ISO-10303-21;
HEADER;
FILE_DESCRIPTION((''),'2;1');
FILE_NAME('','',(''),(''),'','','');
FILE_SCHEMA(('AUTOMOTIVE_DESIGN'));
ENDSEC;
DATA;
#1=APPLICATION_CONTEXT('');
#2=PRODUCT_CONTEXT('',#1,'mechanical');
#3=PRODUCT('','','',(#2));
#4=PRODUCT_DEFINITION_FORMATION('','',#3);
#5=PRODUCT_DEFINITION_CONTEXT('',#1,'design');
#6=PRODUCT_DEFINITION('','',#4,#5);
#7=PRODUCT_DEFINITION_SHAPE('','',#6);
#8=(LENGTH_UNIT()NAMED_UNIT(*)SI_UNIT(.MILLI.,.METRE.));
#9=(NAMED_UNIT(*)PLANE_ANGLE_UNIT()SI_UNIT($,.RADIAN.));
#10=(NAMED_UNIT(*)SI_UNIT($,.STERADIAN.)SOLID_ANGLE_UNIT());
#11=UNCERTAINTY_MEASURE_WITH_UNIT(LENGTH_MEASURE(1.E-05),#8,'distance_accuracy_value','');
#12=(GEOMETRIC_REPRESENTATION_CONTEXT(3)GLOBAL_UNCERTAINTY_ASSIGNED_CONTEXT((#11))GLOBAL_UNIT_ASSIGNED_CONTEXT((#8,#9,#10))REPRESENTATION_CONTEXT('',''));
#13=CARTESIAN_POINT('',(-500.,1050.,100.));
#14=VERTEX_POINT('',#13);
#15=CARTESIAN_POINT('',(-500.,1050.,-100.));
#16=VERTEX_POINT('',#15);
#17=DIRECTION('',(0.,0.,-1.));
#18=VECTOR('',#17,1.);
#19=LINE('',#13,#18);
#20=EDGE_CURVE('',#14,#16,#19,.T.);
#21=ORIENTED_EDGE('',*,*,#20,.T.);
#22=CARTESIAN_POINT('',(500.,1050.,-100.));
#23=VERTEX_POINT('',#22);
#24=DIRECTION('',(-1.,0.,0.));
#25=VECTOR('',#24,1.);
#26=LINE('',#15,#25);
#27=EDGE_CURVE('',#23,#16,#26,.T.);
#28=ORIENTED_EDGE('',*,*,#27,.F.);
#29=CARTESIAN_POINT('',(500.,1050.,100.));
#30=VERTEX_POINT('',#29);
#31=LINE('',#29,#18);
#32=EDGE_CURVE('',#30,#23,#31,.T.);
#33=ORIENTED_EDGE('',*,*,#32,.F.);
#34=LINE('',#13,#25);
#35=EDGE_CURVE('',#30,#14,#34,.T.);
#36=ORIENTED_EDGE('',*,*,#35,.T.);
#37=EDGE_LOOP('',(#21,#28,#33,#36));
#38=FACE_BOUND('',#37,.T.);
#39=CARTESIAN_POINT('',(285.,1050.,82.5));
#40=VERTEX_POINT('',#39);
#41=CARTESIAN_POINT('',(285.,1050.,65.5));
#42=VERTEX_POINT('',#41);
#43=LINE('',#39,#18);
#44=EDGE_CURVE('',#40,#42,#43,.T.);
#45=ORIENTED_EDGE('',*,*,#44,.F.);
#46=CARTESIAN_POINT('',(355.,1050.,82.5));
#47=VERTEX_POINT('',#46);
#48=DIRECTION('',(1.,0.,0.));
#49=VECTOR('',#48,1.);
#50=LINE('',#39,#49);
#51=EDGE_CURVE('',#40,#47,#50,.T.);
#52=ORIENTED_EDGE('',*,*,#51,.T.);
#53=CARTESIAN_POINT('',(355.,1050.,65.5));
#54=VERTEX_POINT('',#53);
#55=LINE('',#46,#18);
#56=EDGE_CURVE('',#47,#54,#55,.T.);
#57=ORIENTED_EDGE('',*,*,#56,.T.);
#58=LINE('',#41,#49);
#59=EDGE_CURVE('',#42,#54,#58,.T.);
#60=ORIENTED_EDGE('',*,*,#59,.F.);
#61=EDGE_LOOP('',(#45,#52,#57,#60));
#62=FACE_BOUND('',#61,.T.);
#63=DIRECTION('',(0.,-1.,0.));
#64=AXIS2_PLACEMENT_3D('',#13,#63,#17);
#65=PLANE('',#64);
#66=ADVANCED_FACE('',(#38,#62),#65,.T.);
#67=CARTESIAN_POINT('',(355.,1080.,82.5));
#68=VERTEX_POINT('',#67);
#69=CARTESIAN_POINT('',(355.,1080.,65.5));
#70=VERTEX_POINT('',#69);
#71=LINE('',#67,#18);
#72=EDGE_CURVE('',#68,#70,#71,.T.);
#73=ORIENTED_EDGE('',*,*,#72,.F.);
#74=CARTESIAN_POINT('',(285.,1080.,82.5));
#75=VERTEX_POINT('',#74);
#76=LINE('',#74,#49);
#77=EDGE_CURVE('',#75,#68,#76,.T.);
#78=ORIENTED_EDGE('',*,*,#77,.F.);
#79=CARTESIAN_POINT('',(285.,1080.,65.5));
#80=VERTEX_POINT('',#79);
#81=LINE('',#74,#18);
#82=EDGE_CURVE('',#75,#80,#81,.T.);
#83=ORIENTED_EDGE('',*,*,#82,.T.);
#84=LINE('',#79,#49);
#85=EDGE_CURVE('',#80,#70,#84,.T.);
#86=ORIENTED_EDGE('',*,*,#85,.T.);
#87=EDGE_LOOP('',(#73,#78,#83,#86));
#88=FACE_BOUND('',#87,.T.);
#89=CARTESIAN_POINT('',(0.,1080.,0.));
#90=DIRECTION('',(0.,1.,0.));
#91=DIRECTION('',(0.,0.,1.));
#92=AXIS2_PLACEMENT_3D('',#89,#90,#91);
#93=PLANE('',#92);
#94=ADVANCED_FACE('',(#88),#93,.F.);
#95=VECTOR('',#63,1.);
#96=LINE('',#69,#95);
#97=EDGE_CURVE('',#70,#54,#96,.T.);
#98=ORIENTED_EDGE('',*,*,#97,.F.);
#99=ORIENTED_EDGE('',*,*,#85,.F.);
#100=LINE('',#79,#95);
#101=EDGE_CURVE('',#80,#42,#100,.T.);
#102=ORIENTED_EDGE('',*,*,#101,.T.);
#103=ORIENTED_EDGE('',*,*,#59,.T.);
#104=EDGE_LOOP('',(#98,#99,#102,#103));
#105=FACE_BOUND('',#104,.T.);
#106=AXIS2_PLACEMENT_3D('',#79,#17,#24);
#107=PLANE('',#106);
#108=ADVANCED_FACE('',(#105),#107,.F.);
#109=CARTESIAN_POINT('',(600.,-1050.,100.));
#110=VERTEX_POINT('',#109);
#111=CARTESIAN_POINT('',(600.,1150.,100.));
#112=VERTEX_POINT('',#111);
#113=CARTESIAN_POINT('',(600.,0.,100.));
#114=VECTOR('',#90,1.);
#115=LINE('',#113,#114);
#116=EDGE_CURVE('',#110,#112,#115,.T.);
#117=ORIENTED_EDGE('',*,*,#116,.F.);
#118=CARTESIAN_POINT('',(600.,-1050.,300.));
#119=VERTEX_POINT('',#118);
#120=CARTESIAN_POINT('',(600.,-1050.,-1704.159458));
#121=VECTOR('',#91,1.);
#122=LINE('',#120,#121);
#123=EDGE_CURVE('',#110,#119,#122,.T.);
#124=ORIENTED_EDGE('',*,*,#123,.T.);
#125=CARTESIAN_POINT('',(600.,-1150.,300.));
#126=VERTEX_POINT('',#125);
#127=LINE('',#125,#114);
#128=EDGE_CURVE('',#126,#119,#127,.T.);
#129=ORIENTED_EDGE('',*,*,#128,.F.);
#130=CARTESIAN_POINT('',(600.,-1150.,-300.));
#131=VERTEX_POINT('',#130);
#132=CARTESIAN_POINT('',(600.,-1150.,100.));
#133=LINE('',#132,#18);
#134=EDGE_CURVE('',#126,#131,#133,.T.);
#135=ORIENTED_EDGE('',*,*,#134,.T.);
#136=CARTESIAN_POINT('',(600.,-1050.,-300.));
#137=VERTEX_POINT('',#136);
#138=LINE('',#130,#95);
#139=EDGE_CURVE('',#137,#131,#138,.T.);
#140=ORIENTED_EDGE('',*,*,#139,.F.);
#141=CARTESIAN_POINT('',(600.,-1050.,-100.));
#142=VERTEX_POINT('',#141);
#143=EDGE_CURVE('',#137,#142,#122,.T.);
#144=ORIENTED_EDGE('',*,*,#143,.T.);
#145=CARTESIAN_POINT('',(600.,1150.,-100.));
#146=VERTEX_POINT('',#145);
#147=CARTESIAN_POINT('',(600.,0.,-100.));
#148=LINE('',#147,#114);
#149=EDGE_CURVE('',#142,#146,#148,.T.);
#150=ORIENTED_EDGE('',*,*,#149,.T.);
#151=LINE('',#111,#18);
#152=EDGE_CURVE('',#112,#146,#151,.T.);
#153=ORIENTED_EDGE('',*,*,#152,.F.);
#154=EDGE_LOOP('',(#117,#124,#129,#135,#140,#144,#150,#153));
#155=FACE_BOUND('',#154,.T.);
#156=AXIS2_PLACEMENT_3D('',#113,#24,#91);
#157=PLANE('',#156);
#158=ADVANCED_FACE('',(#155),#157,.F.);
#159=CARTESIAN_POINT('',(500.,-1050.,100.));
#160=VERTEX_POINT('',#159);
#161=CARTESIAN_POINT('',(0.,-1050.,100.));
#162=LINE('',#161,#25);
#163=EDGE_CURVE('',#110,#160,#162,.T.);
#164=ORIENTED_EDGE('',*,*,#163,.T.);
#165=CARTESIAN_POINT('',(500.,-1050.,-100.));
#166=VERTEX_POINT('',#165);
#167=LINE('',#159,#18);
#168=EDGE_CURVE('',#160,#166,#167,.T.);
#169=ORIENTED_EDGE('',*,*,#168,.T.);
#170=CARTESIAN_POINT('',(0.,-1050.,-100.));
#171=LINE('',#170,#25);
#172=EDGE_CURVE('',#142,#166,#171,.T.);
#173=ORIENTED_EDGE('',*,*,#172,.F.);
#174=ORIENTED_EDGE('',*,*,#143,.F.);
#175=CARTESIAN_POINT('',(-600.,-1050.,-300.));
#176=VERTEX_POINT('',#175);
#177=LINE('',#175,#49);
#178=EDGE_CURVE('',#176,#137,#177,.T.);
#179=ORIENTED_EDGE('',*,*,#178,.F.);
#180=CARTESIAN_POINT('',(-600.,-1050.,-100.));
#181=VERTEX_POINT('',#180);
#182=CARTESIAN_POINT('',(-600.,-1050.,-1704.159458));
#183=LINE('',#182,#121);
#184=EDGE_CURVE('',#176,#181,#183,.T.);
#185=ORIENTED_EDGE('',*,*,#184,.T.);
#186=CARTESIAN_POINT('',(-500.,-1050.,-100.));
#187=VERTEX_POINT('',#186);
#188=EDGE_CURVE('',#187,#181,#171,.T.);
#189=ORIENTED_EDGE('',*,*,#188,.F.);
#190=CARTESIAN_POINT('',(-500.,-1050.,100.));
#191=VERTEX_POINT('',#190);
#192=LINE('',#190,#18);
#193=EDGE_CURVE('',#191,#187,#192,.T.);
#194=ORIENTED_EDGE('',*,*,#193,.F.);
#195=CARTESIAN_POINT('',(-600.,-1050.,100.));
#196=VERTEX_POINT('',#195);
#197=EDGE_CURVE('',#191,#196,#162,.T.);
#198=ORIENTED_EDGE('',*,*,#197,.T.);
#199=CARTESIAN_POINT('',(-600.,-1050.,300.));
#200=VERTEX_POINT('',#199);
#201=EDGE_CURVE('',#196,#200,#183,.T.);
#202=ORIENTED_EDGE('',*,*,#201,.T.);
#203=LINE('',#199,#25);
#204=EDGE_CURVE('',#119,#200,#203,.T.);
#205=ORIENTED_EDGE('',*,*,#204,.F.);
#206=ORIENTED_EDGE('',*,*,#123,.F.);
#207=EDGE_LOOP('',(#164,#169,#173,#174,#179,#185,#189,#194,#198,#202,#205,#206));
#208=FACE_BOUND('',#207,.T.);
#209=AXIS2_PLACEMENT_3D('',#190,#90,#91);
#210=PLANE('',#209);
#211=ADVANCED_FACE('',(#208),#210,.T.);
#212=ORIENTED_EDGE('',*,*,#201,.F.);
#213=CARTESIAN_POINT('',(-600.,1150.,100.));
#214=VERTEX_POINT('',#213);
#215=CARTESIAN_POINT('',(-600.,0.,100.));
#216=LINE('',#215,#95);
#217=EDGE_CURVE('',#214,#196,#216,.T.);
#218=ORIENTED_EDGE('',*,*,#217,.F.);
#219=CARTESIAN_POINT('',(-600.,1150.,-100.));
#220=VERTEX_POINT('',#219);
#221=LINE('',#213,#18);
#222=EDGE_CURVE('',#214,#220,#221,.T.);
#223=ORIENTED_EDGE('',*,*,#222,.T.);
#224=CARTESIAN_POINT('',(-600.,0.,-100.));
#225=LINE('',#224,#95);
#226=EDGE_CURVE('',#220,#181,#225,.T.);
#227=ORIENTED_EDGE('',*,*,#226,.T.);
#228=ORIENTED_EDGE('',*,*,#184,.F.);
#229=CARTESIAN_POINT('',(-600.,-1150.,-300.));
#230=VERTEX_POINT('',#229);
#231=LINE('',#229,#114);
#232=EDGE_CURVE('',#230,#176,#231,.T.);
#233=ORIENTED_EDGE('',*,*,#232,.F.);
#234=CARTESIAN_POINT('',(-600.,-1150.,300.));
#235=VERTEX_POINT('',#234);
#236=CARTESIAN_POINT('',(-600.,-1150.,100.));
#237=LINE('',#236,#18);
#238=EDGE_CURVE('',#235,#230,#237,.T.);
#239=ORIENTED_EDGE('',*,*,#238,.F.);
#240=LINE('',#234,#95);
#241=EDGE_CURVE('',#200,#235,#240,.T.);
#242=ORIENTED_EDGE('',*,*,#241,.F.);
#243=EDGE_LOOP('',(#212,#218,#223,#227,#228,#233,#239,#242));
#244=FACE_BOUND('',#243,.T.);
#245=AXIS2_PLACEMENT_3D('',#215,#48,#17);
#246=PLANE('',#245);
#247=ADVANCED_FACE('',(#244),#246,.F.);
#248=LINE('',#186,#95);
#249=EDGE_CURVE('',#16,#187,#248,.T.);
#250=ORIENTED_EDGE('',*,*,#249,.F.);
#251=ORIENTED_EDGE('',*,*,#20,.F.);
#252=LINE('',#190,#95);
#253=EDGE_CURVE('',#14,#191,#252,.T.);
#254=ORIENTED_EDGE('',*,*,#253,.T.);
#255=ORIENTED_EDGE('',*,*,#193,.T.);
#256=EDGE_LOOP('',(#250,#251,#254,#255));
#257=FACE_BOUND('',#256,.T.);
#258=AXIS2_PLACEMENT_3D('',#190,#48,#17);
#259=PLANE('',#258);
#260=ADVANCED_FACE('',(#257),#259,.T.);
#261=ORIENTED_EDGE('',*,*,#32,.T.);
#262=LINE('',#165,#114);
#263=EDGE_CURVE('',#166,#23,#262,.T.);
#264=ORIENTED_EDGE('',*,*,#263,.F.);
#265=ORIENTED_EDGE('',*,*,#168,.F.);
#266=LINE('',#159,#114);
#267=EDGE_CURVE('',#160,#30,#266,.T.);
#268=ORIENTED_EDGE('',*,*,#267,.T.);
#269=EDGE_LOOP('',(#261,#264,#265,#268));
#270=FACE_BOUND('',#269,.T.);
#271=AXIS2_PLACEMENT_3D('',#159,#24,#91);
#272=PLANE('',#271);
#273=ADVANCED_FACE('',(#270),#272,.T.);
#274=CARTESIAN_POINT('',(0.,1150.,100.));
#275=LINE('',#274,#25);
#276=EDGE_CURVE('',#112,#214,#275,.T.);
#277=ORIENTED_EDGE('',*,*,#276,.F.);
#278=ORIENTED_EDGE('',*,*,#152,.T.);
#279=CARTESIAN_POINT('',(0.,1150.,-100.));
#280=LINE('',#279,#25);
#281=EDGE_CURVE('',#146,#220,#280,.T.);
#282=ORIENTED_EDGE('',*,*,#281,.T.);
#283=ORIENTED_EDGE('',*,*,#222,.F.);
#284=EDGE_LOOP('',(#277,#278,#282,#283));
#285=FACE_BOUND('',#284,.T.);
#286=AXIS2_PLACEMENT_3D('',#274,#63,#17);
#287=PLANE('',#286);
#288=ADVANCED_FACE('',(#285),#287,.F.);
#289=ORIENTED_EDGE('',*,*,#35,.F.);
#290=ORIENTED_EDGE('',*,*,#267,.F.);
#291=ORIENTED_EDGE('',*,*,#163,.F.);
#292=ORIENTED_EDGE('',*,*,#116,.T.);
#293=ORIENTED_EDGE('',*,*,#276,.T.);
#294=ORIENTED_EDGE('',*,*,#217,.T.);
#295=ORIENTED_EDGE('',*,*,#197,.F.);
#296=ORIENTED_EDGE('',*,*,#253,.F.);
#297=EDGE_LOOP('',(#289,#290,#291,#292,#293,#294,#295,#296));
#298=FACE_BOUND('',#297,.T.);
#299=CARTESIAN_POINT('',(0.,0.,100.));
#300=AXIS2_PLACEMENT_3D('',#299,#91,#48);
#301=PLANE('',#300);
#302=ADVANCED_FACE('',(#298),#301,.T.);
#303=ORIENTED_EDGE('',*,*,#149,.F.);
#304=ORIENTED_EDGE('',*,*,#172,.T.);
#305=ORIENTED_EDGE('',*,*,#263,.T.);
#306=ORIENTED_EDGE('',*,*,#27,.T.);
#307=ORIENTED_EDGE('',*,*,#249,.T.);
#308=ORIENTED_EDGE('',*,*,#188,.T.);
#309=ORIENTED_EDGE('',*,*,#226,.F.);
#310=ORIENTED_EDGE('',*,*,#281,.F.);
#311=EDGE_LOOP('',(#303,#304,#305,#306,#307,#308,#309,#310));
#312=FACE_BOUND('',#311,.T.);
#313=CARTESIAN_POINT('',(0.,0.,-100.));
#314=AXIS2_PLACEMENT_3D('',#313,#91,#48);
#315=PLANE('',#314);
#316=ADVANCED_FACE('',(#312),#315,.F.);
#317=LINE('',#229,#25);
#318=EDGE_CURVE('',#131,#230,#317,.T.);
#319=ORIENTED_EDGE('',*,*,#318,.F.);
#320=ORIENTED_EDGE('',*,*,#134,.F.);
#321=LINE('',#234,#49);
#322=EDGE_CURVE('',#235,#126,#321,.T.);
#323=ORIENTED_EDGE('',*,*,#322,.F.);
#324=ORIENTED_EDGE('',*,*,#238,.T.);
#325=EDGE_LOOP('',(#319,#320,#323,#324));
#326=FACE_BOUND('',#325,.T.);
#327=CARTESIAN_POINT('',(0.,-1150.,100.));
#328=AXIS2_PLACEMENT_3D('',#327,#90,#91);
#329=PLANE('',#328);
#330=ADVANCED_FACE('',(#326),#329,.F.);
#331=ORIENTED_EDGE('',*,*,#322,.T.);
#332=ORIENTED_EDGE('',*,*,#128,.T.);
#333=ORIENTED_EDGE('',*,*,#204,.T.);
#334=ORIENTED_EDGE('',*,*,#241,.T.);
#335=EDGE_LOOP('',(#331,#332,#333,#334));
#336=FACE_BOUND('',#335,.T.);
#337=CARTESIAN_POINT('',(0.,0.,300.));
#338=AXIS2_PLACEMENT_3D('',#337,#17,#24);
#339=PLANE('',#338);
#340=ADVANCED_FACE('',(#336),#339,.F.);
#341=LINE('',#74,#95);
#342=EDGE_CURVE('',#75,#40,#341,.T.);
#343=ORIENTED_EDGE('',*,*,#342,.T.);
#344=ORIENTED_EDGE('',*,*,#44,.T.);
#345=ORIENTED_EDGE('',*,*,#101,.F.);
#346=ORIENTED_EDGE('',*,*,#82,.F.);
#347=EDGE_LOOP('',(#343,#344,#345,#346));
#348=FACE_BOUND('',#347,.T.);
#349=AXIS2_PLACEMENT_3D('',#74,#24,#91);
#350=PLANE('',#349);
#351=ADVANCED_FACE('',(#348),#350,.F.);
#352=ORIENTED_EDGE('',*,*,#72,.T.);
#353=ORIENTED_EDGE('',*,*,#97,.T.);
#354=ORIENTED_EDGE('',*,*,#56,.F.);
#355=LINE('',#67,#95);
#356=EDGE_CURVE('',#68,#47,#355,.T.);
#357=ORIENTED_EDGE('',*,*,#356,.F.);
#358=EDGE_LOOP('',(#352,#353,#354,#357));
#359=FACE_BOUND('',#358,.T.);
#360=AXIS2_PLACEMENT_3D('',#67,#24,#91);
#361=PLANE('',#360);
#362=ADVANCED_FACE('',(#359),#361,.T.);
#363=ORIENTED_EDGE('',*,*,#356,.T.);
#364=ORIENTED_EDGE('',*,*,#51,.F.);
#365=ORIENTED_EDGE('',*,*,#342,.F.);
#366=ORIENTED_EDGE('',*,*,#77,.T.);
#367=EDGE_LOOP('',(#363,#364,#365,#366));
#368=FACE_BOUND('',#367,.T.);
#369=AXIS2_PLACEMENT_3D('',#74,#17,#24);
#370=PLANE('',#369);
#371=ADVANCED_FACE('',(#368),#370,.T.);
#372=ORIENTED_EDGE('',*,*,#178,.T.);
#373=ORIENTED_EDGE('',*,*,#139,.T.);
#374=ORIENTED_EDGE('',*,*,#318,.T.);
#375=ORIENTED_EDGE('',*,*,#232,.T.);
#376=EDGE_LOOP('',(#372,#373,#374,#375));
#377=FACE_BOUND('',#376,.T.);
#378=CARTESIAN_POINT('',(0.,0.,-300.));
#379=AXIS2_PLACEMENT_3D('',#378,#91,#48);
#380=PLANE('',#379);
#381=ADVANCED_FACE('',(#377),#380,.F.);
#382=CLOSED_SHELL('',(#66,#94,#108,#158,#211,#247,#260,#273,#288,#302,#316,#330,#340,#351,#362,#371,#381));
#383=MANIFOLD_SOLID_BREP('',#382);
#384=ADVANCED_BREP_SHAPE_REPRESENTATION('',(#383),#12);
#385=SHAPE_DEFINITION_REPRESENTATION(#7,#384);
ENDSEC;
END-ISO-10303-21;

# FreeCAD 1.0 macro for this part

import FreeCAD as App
import Part
import Sketcher
from FreeCAD import Vector


def add_polygon(sketch, points):
    """Adds a closed chain of lines whose ends are joined by coincident constraints."""
    first, n = sketch.GeometryCount, len(points)
    for a, b in zip(points, points[1:] + points[:1]):
        sketch.addGeometry(Part.LineSegment(App.Vector(*a, 0), App.Vector(*b, 0)), False)
    for i in range(n):
        sketch.addConstraint(Sketcher.Constraint("Coincident", first + i, 2, first + (i + 1) % n, 1))

doc = App.newDocument("Part")
body = doc.addObject("PartDesign::Body", "Body")

# Sketch on XY plane
sketch1 = body.newObject("Sketcher::SketchObject", "Sketch")
sketch1.AttachmentSupport = (doc.getObject("XY_Plane"), [""])
sketch1.MapMode = "FlatFace"
add_polygon(sketch1, [(-600, 1150), (-600, -1150), (600, -1150), (600, 1150)])  # lines 0-3
add_polygon(sketch1, [(500, -1050), (-500, -1050), (-500, 1050), (500, 1050)])  # lines 4-7
sketch1.addConstraint(Sketcher.Constraint("Vertical", 0))
sketch1.addConstraint(Sketcher.Constraint("Horizontal", 1))
sketch1.addConstraint(Sketcher.Constraint("Vertical", 2))
sketch1.addConstraint(Sketcher.Constraint("Horizontal", 3))
sketch1.addConstraint(Sketcher.Constraint("Horizontal", 4))
sketch1.addConstraint(Sketcher.Constraint("Vertical", 5))
sketch1.addConstraint(Sketcher.Constraint("Horizontal", 6))
sketch1.addConstraint(Sketcher.Constraint("Vertical", 7))
sketch1.addConstraint(Sketcher.Constraint("Symmetric", 0, 2, 2, 2, -1, 1))
sketch1.addConstraint(Sketcher.Constraint("Symmetric", 4, 2, 6, 2, -1, 1))
sketch1.addConstraint(Sketcher.Constraint("DistanceX", 1, 1, 1, 2, 1200.0))
sketch1.addConstraint(Sketcher.Constraint("DistanceX", 4, 2, 4, 1, 1000.0))
sketch1.addConstraint(Sketcher.Constraint("DistanceY", 0, 2, 0, 1, 2300.0))
sketch1.addConstraint(Sketcher.Constraint("DistanceY", 5, 1, 5, 2, 2100.0))
pad1 = body.newObject("PartDesign::Pad", "Pad")
pad1.Profile = sketch1
pad1.Length = 200
pad1.Midplane = True

# Sketch on XY plane
sketch2 = body.newObject("Sketcher::SketchObject", "Sketch001")
sketch2.AttachmentSupport = (doc.getObject("XY_Plane"), [""])
sketch2.MapMode = "FlatFace"
sketch2.AttachmentOffset = App.Placement(Vector(0, 0, 100), App.Rotation())
add_polygon(sketch2, [(-600, -1050), (-600, -1150), (600, -1150), (600, -1050)])  # lines 0-3
sketch2.addConstraint(Sketcher.Constraint("Vertical", 0))
sketch2.addConstraint(Sketcher.Constraint("Horizontal", 1))
sketch2.addConstraint(Sketcher.Constraint("Vertical", 2))
sketch2.addConstraint(Sketcher.Constraint("Horizontal", 3))
sketch2.addConstraint(Sketcher.Constraint("DistanceX", 1, 1, 1, 2, 1200.0))
sketch2.addConstraint(Sketcher.Constraint("DistanceY", 0, 2, 0, 1, 100.0))
sketch2.addConstraint(Sketcher.Constraint("DistanceX", 0, 2, -1, 1, 600.0))
sketch2.addConstraint(Sketcher.Constraint("DistanceY", 0, 2, -1, 1, 1150.0))
pad2 = body.newObject("PartDesign::Pad", "Pad001")
pad2.Profile = sketch2
pad2.Type = "TwoLengths"
pad2.Length = 200
pad2.Length2 = 400

# Sketch on XZ plane
sketch3 = body.newObject("Sketcher::SketchObject", "Sketch002")
sketch3.AttachmentSupport = (doc.getObject("XZ_Plane"), [""])
sketch3.MapMode = "FlatFace"
sketch3.AttachmentOffset = App.Placement(Vector(0, 0, -1050), App.Rotation())
add_polygon(sketch3, [(285, 82), (285, 66), (355, 66), (355, 82)])  # lines 0-3
sketch3.addConstraint(Sketcher.Constraint("Vertical", 0))
sketch3.addConstraint(Sketcher.Constraint("Horizontal", 1))
sketch3.addConstraint(Sketcher.Constraint("Vertical", 2))
sketch3.addConstraint(Sketcher.Constraint("Horizontal", 3))
sketch3.addConstraint(Sketcher.Constraint("DistanceX", 1, 1, 1, 2, 70.0))
sketch3.addConstraint(Sketcher.Constraint("DistanceY", 0, 2, 0, 1, 17.0))
sketch3.addConstraint(Sketcher.Constraint("DistanceX", -1, 1, 0, 2, 285.0))
sketch3.addConstraint(Sketcher.Constraint("DistanceY", -1, 1, 0, 2, 65.5))
pocket1 = body.newObject("PartDesign::Pocket", "Pocket")
pocket1.Profile = sketch3
pocket1.Length = 30

doc.recompute()
